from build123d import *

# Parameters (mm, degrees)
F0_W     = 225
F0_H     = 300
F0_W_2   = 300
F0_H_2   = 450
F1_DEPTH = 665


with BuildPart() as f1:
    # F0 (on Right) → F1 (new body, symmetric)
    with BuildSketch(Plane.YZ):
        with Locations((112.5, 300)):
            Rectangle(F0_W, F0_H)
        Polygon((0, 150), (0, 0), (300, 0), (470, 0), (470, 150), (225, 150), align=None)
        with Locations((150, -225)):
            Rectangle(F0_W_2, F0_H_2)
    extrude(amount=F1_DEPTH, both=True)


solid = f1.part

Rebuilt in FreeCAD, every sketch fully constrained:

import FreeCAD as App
import Part
import Sketcher
from FreeCAD import Vector
Q = App.Units.Quantity

doc = App.newDocument("Part")
body = doc.addObject("PartDesign::Body", "Body")

# Sketch on YZ plane
sketch1 = body.newObject("Sketcher::SketchObject", "Sketch")
sketch1.AttachmentSupport = (doc.getObject("YZ_Plane"), [""])
sketch1.MapMode = "FlatFace"
sketch1.addGeometry([
    Part.LineSegment(Vector(0, 450, 0), Vector(0, -450, 0)),  # 0
    Part.LineSegment(Vector(0, -450, 0), Vector(300, -450, 0)),  # 1
    Part.LineSegment(Vector(300, -450, 0), Vector(300, 0, 0)),  # 2
    Part.LineSegment(Vector(300, 0, 0), Vector(470, 0, 0)),  # 3
    Part.LineSegment(Vector(470, 0, 0), Vector(470, 150, 0)),  # 4
    Part.LineSegment(Vector(470, 150, 0), Vector(225, 150, 0)),  # 5
    Part.LineSegment(Vector(225, 150, 0), Vector(225, 450, 0)),  # 6
    Part.LineSegment(Vector(225, 450, 0), Vector(0, 450, 0)),  # 7
], False)
sketch1.addConstraint([
    Sketcher.Constraint("Coincident", 0, 2, 1, 1),
    Sketcher.Constraint("Coincident", 1, 2, 2, 1),
    Sketcher.Constraint("Coincident", 2, 2, 3, 1),
    Sketcher.Constraint("Coincident", 3, 2, 4, 1),
    Sketcher.Constraint("Coincident", 4, 2, 5, 1),
    Sketcher.Constraint("Coincident", 5, 2, 6, 1),
    Sketcher.Constraint("Coincident", 6, 2, 7, 1),
    Sketcher.Constraint("Coincident", 7, 2, 0, 1),
    Sketcher.Constraint("Vertical", 0),
    Sketcher.Constraint("Horizontal", 1),
    Sketcher.Constraint("Vertical", 2),
    Sketcher.Constraint("Horizontal", 3),
    Sketcher.Constraint("Vertical", 4),
    Sketcher.Constraint("Horizontal", 5),
    Sketcher.Constraint("Vertical", 6),
    Sketcher.Constraint("Horizontal", 7),
    Sketcher.Constraint("Symmetric", 0, 2, 7, 2, -1, 1),
    Sketcher.Constraint("PointOnObject", 2, 2, -1),
    Sketcher.Constraint("Equal", 1, 6),
    Sketcher.Constraint("DistanceX", 1, 1, 1, 2, Q("300 mm")),
    Sketcher.Constraint("DistanceX", 3, 1, 3, 2, Q("170 mm")),
    Sketcher.Constraint("DistanceX", 5, 2, 5, 1, Q("245 mm")),
    Sketcher.Constraint("DistanceY", 0, 2, 0, 1, Q("900 mm")),
])
pad1 = body.newObject("PartDesign::Pad", "Pad")
pad1.Profile = sketch1
pad1.Length = 1330
pad1.Midplane = True

doc.recompute()
